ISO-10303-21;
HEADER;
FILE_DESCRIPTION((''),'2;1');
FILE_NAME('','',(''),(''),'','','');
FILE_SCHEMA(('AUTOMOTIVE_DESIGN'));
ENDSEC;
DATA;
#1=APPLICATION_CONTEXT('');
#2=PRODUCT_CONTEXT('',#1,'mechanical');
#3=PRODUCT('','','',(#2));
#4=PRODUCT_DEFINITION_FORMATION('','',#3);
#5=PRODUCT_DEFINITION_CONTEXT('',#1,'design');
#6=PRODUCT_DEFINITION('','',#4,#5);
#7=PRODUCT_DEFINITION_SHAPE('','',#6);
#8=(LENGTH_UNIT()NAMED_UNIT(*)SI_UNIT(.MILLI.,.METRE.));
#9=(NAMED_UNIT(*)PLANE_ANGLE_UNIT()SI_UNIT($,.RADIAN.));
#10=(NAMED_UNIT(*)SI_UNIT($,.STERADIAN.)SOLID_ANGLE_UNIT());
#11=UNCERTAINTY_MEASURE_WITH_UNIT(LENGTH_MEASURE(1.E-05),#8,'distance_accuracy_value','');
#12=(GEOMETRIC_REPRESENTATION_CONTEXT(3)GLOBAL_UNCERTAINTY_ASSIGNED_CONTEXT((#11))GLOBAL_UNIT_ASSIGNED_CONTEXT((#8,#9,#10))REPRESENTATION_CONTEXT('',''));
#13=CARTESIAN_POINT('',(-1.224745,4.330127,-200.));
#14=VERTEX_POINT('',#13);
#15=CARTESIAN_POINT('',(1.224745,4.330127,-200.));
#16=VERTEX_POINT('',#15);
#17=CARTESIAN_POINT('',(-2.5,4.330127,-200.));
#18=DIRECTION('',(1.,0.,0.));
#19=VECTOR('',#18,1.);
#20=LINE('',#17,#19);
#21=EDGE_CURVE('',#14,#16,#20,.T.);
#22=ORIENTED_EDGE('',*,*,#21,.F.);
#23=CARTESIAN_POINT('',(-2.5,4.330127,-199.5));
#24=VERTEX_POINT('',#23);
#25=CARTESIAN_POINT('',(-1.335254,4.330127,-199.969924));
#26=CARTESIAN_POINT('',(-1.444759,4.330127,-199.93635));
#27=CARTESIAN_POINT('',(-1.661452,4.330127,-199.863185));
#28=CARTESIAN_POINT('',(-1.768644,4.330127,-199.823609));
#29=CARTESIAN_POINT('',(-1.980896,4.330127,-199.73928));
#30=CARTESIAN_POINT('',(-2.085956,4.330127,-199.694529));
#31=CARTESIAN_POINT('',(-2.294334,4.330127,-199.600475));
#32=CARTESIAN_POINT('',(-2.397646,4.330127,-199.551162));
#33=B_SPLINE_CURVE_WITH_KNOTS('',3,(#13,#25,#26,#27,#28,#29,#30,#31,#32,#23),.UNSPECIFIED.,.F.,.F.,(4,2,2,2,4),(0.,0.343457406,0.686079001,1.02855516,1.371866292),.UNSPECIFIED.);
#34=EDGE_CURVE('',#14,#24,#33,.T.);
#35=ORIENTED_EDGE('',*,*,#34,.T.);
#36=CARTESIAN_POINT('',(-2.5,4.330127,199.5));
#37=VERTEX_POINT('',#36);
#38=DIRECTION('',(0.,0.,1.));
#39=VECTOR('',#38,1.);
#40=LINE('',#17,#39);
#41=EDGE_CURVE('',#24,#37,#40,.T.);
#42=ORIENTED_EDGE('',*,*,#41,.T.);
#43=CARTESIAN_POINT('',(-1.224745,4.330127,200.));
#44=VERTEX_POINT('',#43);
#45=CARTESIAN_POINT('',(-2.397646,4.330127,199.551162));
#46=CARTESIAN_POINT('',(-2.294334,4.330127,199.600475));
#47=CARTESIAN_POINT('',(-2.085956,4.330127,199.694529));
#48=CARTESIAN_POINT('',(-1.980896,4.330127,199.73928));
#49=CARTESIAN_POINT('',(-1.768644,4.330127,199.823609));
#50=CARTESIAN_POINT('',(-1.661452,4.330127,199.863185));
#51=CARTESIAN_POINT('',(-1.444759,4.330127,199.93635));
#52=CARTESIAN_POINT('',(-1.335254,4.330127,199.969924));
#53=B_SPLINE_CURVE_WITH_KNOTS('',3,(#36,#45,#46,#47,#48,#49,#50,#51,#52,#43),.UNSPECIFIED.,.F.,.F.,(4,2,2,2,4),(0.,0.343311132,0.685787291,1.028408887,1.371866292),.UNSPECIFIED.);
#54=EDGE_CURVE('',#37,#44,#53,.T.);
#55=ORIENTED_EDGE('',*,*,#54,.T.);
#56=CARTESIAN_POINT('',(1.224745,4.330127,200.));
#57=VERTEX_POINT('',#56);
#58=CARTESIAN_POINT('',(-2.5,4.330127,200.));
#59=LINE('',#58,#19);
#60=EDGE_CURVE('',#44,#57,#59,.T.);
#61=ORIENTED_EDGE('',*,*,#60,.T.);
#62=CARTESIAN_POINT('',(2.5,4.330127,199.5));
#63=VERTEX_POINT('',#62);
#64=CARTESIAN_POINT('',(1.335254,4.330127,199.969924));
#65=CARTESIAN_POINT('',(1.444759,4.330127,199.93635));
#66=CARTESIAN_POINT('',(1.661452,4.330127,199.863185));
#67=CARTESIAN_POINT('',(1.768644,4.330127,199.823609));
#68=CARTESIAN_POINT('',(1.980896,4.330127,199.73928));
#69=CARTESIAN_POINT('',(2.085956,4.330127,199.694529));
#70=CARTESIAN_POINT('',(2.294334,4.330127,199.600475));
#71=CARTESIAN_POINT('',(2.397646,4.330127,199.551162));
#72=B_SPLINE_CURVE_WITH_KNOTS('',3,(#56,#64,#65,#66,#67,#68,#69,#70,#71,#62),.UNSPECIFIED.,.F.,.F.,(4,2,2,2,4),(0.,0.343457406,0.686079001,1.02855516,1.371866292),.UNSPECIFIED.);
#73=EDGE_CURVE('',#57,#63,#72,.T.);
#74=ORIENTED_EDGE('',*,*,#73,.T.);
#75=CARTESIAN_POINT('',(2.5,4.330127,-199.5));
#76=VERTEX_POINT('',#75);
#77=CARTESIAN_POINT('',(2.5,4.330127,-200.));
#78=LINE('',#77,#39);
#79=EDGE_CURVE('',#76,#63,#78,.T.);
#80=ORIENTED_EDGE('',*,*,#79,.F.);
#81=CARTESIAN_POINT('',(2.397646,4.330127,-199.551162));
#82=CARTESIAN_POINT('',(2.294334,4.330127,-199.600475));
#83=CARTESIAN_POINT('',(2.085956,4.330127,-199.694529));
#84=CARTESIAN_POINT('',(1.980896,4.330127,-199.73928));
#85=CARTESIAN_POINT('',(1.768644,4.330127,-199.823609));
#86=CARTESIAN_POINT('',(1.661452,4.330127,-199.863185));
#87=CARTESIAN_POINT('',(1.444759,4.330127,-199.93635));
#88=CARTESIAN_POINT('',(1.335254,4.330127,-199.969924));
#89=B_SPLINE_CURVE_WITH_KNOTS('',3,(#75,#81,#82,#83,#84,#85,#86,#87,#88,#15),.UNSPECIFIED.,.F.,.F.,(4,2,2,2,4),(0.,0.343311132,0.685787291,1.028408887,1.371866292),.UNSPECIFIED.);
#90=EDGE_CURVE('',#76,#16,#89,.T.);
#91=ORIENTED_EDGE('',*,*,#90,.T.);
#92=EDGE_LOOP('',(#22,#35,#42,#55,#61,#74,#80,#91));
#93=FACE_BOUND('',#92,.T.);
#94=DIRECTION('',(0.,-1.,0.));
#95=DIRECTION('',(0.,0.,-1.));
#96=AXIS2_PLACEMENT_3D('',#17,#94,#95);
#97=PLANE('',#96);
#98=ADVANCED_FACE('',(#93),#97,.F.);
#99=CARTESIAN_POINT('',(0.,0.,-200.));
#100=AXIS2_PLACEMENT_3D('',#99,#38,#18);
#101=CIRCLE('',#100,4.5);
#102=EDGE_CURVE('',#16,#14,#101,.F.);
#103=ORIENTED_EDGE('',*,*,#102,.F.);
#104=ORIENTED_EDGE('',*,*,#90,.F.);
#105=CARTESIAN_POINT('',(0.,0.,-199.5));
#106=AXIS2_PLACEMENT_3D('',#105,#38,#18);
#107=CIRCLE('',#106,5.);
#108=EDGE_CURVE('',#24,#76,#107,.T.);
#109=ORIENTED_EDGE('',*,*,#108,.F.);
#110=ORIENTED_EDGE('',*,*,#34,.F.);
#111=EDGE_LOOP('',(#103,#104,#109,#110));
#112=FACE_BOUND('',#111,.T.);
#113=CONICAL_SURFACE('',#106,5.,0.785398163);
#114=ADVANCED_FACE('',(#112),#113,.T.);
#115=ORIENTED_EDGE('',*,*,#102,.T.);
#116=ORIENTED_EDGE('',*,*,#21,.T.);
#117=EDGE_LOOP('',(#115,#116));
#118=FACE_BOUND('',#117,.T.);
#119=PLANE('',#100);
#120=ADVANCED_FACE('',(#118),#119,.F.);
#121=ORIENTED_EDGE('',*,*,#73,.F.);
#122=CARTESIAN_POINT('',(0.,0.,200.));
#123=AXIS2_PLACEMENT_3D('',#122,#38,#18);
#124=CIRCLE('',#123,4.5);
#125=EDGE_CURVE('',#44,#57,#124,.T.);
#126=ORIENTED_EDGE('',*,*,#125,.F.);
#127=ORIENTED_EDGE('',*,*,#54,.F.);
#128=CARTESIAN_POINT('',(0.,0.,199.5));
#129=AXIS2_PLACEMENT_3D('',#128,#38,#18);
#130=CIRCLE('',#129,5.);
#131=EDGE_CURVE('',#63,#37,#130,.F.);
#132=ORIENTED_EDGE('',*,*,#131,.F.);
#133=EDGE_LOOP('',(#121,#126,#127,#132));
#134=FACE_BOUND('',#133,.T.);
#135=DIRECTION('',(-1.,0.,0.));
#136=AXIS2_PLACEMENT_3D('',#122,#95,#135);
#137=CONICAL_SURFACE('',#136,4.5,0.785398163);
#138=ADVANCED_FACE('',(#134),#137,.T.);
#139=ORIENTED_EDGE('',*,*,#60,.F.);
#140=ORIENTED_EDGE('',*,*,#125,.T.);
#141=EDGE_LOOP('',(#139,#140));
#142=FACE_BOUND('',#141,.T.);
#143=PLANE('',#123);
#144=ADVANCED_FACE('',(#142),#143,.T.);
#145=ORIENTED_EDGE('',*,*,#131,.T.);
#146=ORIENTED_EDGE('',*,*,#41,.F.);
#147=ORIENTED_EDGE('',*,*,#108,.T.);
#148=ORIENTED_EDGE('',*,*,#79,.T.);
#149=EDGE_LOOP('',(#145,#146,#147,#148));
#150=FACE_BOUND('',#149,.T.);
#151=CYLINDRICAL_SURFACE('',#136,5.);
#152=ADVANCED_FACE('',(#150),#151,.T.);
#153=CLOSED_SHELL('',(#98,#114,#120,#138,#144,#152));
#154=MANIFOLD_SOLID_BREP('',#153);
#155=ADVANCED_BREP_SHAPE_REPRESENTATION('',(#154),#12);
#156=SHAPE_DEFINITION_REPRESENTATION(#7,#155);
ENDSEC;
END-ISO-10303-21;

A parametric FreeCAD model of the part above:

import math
import FreeCAD as App
import Part
import Sketcher


def edges_at(feature, points):
    """Names of the edges that pass closest to the given points."""
    edges = feature.Shape.Edges
    near = lambda p: min(range(len(edges)), key=lambda i: edges[i].distToShape(Part.Vertex(*p))[0])
    return sorted({f"Edge{near(p) + 1}" for p in points})

doc = App.newDocument("Part")
body = doc.addObject("PartDesign::Body", "Body")

# Sketch on XY plane
sketch1 = body.newObject("Sketcher::SketchObject", "Sketch")
sketch1.AttachmentSupport = (doc.getObject("XY_Plane"), [""])
sketch1.MapMode = "FlatFace"
sketch1.addGeometry(Part.Circle(App.Vector(0, 0, 0), App.Vector(0, 0, 1), 5), False)
sketch1.addConstraint(Sketcher.Constraint("Coincident", 0, 3, -1, 1))
sketch1.addConstraint(Sketcher.Constraint("Diameter", 0, 10.0))
pad1 = body.newObject("PartDesign::Pad", "Pad")
pad1.Profile = sketch1
pad1.Type = "TwoLengths"
pad1.Length = 200
pad1.Length2 = 200

# Sketch on XY plane
sketch2 = body.newObject("Sketcher::SketchObject", "Sketch001")
sketch2.AttachmentSupport = (doc.getObject("XY_Plane"), [""])
sketch2.MapMode = "FlatFace"
sketch2.addGeometry(Part.LineSegment(App.Vector(-2, 4, 0), App.Vector(2, 4, 0)), False)
sketch2.addGeometry(Part.ArcOfCircle(Part.Circle(App.Vector(0, 0, 0), App.Vector(0, 0, 1), 5), math.radians(60), math.radians(120)), False)
sketch2.addConstraint(Sketcher.Constraint("Coincident", 0, 1, 1, 2))
sketch2.addConstraint(Sketcher.Constraint("Coincident", 1, 1, 0, 2))
sketch2.addConstraint(Sketcher.Constraint("Horizontal", 0))
sketch2.addConstraint(Sketcher.Constraint("Coincident", 1, 3, -1, 1))
sketch2.addConstraint(Sketcher.Constraint("Radius", 1, 5.0))
sketch2.addConstraint(Sketcher.Constraint("DistanceX", 0, 1, 0, 2, 5.0))
pocket1 = body.newObject("PartDesign::Pocket", "Pocket")
pocket1.Profile = sketch2
pocket1.Type = "ThroughAll"
pocket1.Midplane = True
doc.recompute()

chamfer = body.newObject("PartDesign::Chamfer", "Chamfer")
chamfer.Base = (pocket1, edges_at(pocket1, [(0, -5, -200), (0, -5, 200)]))
chamfer.Size = 0.5

doc.recompute()
